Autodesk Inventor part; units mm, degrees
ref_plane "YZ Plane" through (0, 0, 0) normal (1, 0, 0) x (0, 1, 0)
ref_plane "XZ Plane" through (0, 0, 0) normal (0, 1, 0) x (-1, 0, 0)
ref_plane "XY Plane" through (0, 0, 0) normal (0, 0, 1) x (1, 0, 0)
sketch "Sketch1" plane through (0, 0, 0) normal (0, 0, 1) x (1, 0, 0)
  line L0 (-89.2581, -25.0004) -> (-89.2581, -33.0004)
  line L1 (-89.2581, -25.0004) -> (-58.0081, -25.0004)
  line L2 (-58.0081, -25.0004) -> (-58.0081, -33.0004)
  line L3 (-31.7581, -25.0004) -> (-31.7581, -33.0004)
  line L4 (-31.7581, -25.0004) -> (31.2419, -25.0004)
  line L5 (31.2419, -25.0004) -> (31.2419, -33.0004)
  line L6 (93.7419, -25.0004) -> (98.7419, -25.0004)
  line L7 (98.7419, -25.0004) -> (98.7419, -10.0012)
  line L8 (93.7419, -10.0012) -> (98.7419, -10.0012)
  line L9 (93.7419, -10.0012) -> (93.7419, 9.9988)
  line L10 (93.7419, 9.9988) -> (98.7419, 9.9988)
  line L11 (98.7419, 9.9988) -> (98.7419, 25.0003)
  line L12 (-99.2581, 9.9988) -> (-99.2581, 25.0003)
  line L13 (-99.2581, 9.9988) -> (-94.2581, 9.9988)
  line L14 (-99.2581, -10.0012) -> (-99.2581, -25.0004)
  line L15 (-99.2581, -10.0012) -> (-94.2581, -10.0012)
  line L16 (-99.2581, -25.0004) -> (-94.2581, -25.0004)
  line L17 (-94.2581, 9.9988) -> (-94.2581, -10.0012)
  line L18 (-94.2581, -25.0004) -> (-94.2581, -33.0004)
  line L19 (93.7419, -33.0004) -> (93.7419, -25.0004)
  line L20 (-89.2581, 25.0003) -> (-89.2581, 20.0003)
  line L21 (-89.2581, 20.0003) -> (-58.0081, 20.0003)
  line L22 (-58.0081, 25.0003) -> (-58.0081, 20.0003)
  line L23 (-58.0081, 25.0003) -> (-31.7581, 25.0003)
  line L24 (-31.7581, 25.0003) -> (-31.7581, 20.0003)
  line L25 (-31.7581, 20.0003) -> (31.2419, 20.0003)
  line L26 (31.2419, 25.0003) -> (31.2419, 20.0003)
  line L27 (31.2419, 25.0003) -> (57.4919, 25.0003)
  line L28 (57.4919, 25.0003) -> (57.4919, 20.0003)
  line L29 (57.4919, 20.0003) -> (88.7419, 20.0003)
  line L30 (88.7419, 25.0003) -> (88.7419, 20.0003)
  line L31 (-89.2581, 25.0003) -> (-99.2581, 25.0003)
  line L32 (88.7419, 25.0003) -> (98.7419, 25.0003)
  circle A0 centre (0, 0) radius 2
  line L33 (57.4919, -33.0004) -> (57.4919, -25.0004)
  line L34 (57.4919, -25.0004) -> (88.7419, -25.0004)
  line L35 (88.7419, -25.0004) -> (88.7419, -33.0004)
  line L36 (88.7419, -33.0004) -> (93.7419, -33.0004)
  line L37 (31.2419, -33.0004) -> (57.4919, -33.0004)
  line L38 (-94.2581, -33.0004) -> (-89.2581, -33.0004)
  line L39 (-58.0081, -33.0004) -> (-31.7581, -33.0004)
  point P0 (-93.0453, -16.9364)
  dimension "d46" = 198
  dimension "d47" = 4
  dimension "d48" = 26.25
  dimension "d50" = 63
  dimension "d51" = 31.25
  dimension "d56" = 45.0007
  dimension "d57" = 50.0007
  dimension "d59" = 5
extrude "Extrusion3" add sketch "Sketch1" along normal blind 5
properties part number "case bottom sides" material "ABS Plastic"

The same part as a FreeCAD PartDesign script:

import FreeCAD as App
import Part
import Sketcher

V = App.Vector

doc = App.newDocument("Part")
body = doc.addObject("PartDesign::Body", "Body")

# Sketch on XY plane
sketch1 = body.newObject("Sketcher::SketchObject", "Sketch")
sketch1.AttachmentSupport = (doc.getObject("XY_Plane"), [""])
sketch1.MapMode = "FlatFace"
sketch1.addGeometry(Part.LineSegment(V(-89.2581, -33.0004, 0), V(-89.2581, -25.0004, 0)), False)
sketch1.addGeometry(Part.LineSegment(V(-89.2581, -25.0004, 0), V(-58.0081, -25.0004, 0)), False)
sketch1.addGeometry(Part.LineSegment(V(-58.0081, -25.0004, 0), V(-58.0081, -33.0004, 0)), False)
sketch1.addGeometry(Part.LineSegment(V(-58.0081, -33.0004, 0), V(-31.7581, -33.0004, 0)), False)
sketch1.addGeometry(Part.LineSegment(V(-31.7581, -33.0004, 0), V(-31.7581, -25.0004, 0)), False)
sketch1.addGeometry(Part.LineSegment(V(-31.7581, -25.0004, 0), V(31.2419, -25.0004, 0)), False)
sketch1.addGeometry(Part.LineSegment(V(31.2419, -25.0004, 0), V(31.2419, -33.0004, 0)), False)
sketch1.addGeometry(Part.LineSegment(V(31.2419, -33.0004, 0), V(57.4919, -33.0004, 0)), False)
sketch1.addGeometry(Part.LineSegment(V(57.4919, -33.0004, 0), V(57.4919, -25.0004, 0)), False)
sketch1.addGeometry(Part.LineSegment(V(57.4919, -25.0004, 0), V(88.7419, -25.0004, 0)), False)
sketch1.addGeometry(Part.LineSegment(V(88.7419, -25.0004, 0), V(88.7419, -33.0004, 0)), False)
sketch1.addGeometry(Part.LineSegment(V(88.7419, -33.0004, 0), V(93.7419, -33.0004, 0)), False)
sketch1.addGeometry(Part.LineSegment(V(93.7419, -33.0004, 0), V(93.7419, -25.0004, 0)), False)
sketch1.addGeometry(Part.LineSegment(V(93.7419, -25.0004, 0), V(98.7419, -25.0004, 0)), False)
sketch1.addGeometry(Part.LineSegment(V(98.7419, -25.0004, 0), V(98.7419, -10.0012, 0)), False)
sketch1.addGeometry(Part.LineSegment(V(98.7419, -10.0012, 0), V(93.7419, -10.0012, 0)), False)
sketch1.addGeometry(Part.LineSegment(V(93.7419, -10.0012, 0), V(93.7419, 9.9988, 0)), False)
sketch1.addGeometry(Part.LineSegment(V(93.7419, 9.9988, 0), V(98.7419, 9.9988, 0)), False)
sketch1.addGeometry(Part.LineSegment(V(98.7419, 9.9988, 0), V(98.7419, 25.0003, 0)), False)
sketch1.addGeometry(Part.LineSegment(V(98.7419, 25.0003, 0), V(88.7419, 25.0003, 0)), False)
sketch1.addGeometry(Part.LineSegment(V(88.7419, 25.0003, 0), V(88.7419, 20.0003, 0)), False)
sketch1.addGeometry(Part.LineSegment(V(88.7419, 20.0003, 0), V(57.4919, 20.0003, 0)), False)
sketch1.addGeometry(Part.LineSegment(V(57.4919, 20.0003, 0), V(57.4919, 25.0003, 0)), False)
sketch1.addGeometry(Part.LineSegment(V(57.4919, 25.0003, 0), V(31.2419, 25.0003, 0)), False)
sketch1.addGeometry(Part.LineSegment(V(31.2419, 25.0003, 0), V(31.2419, 20.0003, 0)), False)
sketch1.addGeometry(Part.LineSegment(V(31.2419, 20.0003, 0), V(-31.7581, 20.0003, 0)), False)
sketch1.addGeometry(Part.LineSegment(V(-31.7581, 20.0003, 0), V(-31.7581, 25.0003, 0)), False)
sketch1.addGeometry(Part.LineSegment(V(-31.7581, 25.0003, 0), V(-58.0081, 25.0003, 0)), False)
sketch1.addGeometry(Part.LineSegment(V(-58.0081, 25.0003, 0), V(-58.0081, 20.0003, 0)), False)
sketch1.addGeometry(Part.LineSegment(V(-58.0081, 20.0003, 0), V(-89.2581, 20.0003, 0)), False)
sketch1.addGeometry(Part.LineSegment(V(-89.2581, 20.0003, 0), V(-89.2581, 25.0003, 0)), False)
sketch1.addGeometry(Part.LineSegment(V(-89.2581, 25.0003, 0), V(-99.2581, 25.0003, 0)), False)
sketch1.addGeometry(Part.LineSegment(V(-99.2581, 25.0003, 0), V(-99.2581, 9.9988, 0)), False)
sketch1.addGeometry(Part.LineSegment(V(-99.2581, 9.9988, 0), V(-94.2581, 9.9988, 0)), False)
sketch1.addGeometry(Part.LineSegment(V(-94.2581, 9.9988, 0), V(-94.2581, -10.0012, 0)), False)
sketch1.addGeometry(Part.LineSegment(V(-94.2581, -10.0012, 0), V(-99.2581, -10.0012, 0)), False)
sketch1.addGeometry(Part.LineSegment(V(-99.2581, -10.0012, 0), V(-99.2581, -25.0004, 0)), False)
sketch1.addGeometry(Part.LineSegment(V(-99.2581, -25.0004, 0), V(-94.2581, -25.0004, 0)), False)
sketch1.addGeometry(Part.LineSegment(V(-94.2581, -25.0004, 0), V(-94.2581, -33.0004, 0)), False)
sketch1.addGeometry(Part.LineSegment(V(-94.2581, -33.0004, 0), V(-89.2581, -33.0004, 0)), False)
sketch1.addGeometry(Part.Circle(V(0, 0, 0), V(0, 0, 1), 2), False)
sketch1.addConstraint(Sketcher.Constraint("Coincident", 0, 2, 1, 1))
sketch1.addConstraint(Sketcher.Constraint("Coincident", 1, 2, 2, 1))
sketch1.addConstraint(Sketcher.Constraint("Coincident", 2, 2, 3, 1))
sketch1.addConstraint(Sketcher.Constraint("Coincident", 3, 2, 4, 1))
sketch1.addConstraint(Sketcher.Constraint("Coincident", 4, 2, 5, 1))
sketch1.addConstraint(Sketcher.Constraint("Coincident", 5, 2, 6, 1))
sketch1.addConstraint(Sketcher.Constraint("Coincident", 6, 2, 7, 1))
sketch1.addConstraint(Sketcher.Constraint("Coincident", 7, 2, 8, 1))
sketch1.addConstraint(Sketcher.Constraint("Coincident", 8, 2, 9, 1))
sketch1.addConstraint(Sketcher.Constraint("Coincident", 9, 2, 10, 1))
sketch1.addConstraint(Sketcher.Constraint("Coincident", 10, 2, 11, 1))
sketch1.addConstraint(Sketcher.Constraint("Coincident", 11, 2, 12, 1))
sketch1.addConstraint(Sketcher.Constraint("Coincident", 12, 2, 13, 1))
sketch1.addConstraint(Sketcher.Constraint("Coincident", 13, 2, 14, 1))
sketch1.addConstraint(Sketcher.Constraint("Coincident", 14, 2, 15, 1))
sketch1.addConstraint(Sketcher.Constraint("Coincident", 15, 2, 16, 1))
sketch1.addConstraint(Sketcher.Constraint("Coincident", 16, 2, 17, 1))
sketch1.addConstraint(Sketcher.Constraint("Coincident", 17, 2, 18, 1))
sketch1.addConstraint(Sketcher.Constraint("Coincident", 18, 2, 19, 1))
sketch1.addConstraint(Sketcher.Constraint("Coincident", 19, 2, 20, 1))
sketch1.addConstraint(Sketcher.Constraint("Coincident", 20, 2, 21, 1))
sketch1.addConstraint(Sketcher.Constraint("Coincident", 21, 2, 22, 1))
sketch1.addConstraint(Sketcher.Constraint("Coincident", 22, 2, 23, 1))
sketch1.addConstraint(Sketcher.Constraint("Coincident", 23, 2, 24, 1))
sketch1.addConstraint(Sketcher.Constraint("Coincident", 24, 2, 25, 1))
sketch1.addConstraint(Sketcher.Constraint("Coincident", 25, 2, 26, 1))
sketch1.addConstraint(Sketcher.Constraint("Coincident", 26, 2, 27, 1))
sketch1.addConstraint(Sketcher.Constraint("Coincident", 27, 2, 28, 1))
sketch1.addConstraint(Sketcher.Constraint("Coincident", 28, 2, 29, 1))
sketch1.addConstraint(Sketcher.Constraint("Coincident", 29, 2, 30, 1))
sketch1.addConstraint(Sketcher.Constraint("Coincident", 30, 2, 31, 1))
sketch1.addConstraint(Sketcher.Constraint("Coincident", 31, 2, 32, 1))
sketch1.addConstraint(Sketcher.Constraint("Coincident", 32, 2, 33, 1))
sketch1.addConstraint(Sketcher.Constraint("Coincident", 33, 2, 34, 1))
sketch1.addConstraint(Sketcher.Constraint("Coincident", 34, 2, 35, 1))
sketch1.addConstraint(Sketcher.Constraint("Coincident", 35, 2, 36, 1))
sketch1.addConstraint(Sketcher.Constraint("Coincident", 36, 2, 37, 1))
sketch1.addConstraint(Sketcher.Constraint("Coincident", 37, 2, 38, 1))
sketch1.addConstraint(Sketcher.Constraint("Coincident", 38, 2, 39, 1))
sketch1.addConstraint(Sketcher.Constraint("Coincident", 39, 2, 0, 1))
sketch1.addConstraint(Sketcher.Constraint("Vertical", 0))
sketch1.addConstraint(Sketcher.Constraint("Horizontal", 1))
sketch1.addConstraint(Sketcher.Constraint("Vertical", 2))
sketch1.addConstraint(Sketcher.Constraint("Horizontal", 3))
sketch1.addConstraint(Sketcher.Constraint("Vertical", 4))
sketch1.addConstraint(Sketcher.Constraint("Horizontal", 5))
sketch1.addConstraint(Sketcher.Constraint("Vertical", 6))
sketch1.addConstraint(Sketcher.Constraint("Horizontal", 7))
sketch1.addConstraint(Sketcher.Constraint("Vertical", 8))
sketch1.addConstraint(Sketcher.Constraint("Horizontal", 9))
sketch1.addConstraint(Sketcher.Constraint("Vertical", 10))
sketch1.addConstraint(Sketcher.Constraint("Horizontal", 11))
sketch1.addConstraint(Sketcher.Constraint("Vertical", 12))
sketch1.addConstraint(Sketcher.Constraint("Horizontal", 13))
sketch1.addConstraint(Sketcher.Constraint("Vertical", 14))
sketch1.addConstraint(Sketcher.Constraint("Horizontal", 15))
sketch1.addConstraint(Sketcher.Constraint("Vertical", 16))
sketch1.addConstraint(Sketcher.Constraint("Horizontal", 17))
sketch1.addConstraint(Sketcher.Constraint("Vertical", 18))
sketch1.addConstraint(Sketcher.Constraint("Horizontal", 19))
sketch1.addConstraint(Sketcher.Constraint("Vertical", 20))
sketch1.addConstraint(Sketcher.Constraint("Horizontal", 21))
sketch1.addConstraint(Sketcher.Constraint("Vertical", 22))
sketch1.addConstraint(Sketcher.Constraint("Horizontal", 23))
sketch1.addConstraint(Sketcher.Constraint("Vertical", 24))
sketch1.addConstraint(Sketcher.Constraint("Horizontal", 25))
sketch1.addConstraint(Sketcher.Constraint("Vertical", 26))
sketch1.addConstraint(Sketcher.Constraint("Horizontal", 27))
sketch1.addConstraint(Sketcher.Constraint("Vertical", 28))
sketch1.addConstraint(Sketcher.Constraint("Horizontal", 29))
sketch1.addConstraint(Sketcher.Constraint("Vertical", 30))
sketch1.addConstraint(Sketcher.Constraint("Horizontal", 31))
sketch1.addConstraint(Sketcher.Constraint("Vertical", 32))
sketch1.addConstraint(Sketcher.Constraint("Horizontal", 33))
sketch1.addConstraint(Sketcher.Constraint("Vertical", 34))
sketch1.addConstraint(Sketcher.Constraint("Horizontal", 35))
sketch1.addConstraint(Sketcher.Constraint("Vertical", 36))
sketch1.addConstraint(Sketcher.Constraint("Horizontal", 37))
sketch1.addConstraint(Sketcher.Constraint("Vertical", 38))
sketch1.addConstraint(Sketcher.Constraint("Horizontal", 39))
sketch1.addConstraint(Sketcher.Constraint("Coincident", 40, 3, -1, 1))
sketch1.addConstraint(Sketcher.Constraint("Symmetric", 13, 2, 18, 2, -1))
sketch1.addConstraint(Sketcher.Constraint("Symmetric", 9, 2, 19, 2, -1))
sketch1.addConstraint(Sketcher.Constraint("Symmetric", 8, 2, 22, 2, -1))
sketch1.addConstraint(Sketcher.Constraint("Symmetric", 5, 2, 23, 2, -1))
sketch1.addConstraint(Sketcher.Constraint("Symmetric", 4, 2, 26, 2, -1))
sketch1.addConstraint(Sketcher.Constraint("Symmetric", 1, 2, 27, 2, -1))
sketch1.addConstraint(Sketcher.Constraint("Symmetric", 0, 2, 30, 2, -1))
sketch1.addConstraint(Sketcher.Constraint("Symmetric", 31, 2, 36, 2, -1))
sketch1.addConstraint(Sketcher.Constraint("Horizontal", 3, 2, 6, 2))
sketch1.addConstraint(Sketcher.Constraint("Horizontal", 7, 2, 10, 2))
sketch1.addConstraint(Sketcher.Constraint("Horizontal", 21, 2, 24, 2))
sketch1.addConstraint(Sketcher.Constraint("Horizontal", 25, 2, 28, 2))
sketch1.addConstraint(Sketcher.Constraint("Horizontal", 17, 2, 32, 2))
sketch1.addConstraint(Sketcher.Constraint("Horizontal", 15, 2, 34, 2))
sketch1.addConstraint(Sketcher.Constraint("Horizontal", 11, 2, 38, 2))
sketch1.addConstraint(Sketcher.Constraint("Vertical", 12, 2, 15, 2))
sketch1.addConstraint(Sketcher.Constraint("Vertical", 34, 2, 37, 2))
sketch1.addConstraint(Sketcher.Constraint("Equal", 3, 7))
sketch1.addConstraint(Sketcher.Constraint("Equal", 1, 9))
sketch1.addConstraint(Sketcher.Constraint("Equal", 11, 13))
sketch1.addConstraint(Sketcher.Constraint("Equal", 19, 31))
sketch1.addConstraint(Sketcher.Constraint("Equal", 17, 33))
sketch1.addConstraint(Sketcher.Constraint("Equal", 39, 20))
sketch1.addConstraint(Sketcher.Constraint("Diameter", 40, 4.0))
sketch1.addConstraint(Sketcher.Constraint("DistanceX", 5, 1, 5, 2, 63.0))
sketch1.addConstraint(Sketcher.Constraint("DistanceX", 11, 1, 11, 2, 5.0))
sketch1.addConstraint(Sketcher.Constraint("DistanceX", 1, 1, 1, 2, 31.25))
sketch1.addConstraint(Sketcher.Constraint("DistanceX", 3, 1, 3, 2, 26.25))
sketch1.addConstraint(Sketcher.Constraint("DistanceY", 0, 1, 0, 2, 8.0))
sketch1.addConstraint(Sketcher.Constraint("DistanceY", 16, 1, 16, 2, 20.0))
sketch1.addConstraint(Sketcher.Constraint("DistanceY", 13, 2, 18, 2, 50.0007))
sketch1.addConstraint(Sketcher.Constraint("DistanceY", 14, 1, 14, 2, 14.9992))
sketch1.addConstraint(Sketcher.Constraint("DistanceX", 0, 2, -1, 1, 89.258))
pad1 = body.newObject("PartDesign::Pad", "Pad")
pad1.Profile = sketch1
pad1.Length = 5

doc.recompute()
